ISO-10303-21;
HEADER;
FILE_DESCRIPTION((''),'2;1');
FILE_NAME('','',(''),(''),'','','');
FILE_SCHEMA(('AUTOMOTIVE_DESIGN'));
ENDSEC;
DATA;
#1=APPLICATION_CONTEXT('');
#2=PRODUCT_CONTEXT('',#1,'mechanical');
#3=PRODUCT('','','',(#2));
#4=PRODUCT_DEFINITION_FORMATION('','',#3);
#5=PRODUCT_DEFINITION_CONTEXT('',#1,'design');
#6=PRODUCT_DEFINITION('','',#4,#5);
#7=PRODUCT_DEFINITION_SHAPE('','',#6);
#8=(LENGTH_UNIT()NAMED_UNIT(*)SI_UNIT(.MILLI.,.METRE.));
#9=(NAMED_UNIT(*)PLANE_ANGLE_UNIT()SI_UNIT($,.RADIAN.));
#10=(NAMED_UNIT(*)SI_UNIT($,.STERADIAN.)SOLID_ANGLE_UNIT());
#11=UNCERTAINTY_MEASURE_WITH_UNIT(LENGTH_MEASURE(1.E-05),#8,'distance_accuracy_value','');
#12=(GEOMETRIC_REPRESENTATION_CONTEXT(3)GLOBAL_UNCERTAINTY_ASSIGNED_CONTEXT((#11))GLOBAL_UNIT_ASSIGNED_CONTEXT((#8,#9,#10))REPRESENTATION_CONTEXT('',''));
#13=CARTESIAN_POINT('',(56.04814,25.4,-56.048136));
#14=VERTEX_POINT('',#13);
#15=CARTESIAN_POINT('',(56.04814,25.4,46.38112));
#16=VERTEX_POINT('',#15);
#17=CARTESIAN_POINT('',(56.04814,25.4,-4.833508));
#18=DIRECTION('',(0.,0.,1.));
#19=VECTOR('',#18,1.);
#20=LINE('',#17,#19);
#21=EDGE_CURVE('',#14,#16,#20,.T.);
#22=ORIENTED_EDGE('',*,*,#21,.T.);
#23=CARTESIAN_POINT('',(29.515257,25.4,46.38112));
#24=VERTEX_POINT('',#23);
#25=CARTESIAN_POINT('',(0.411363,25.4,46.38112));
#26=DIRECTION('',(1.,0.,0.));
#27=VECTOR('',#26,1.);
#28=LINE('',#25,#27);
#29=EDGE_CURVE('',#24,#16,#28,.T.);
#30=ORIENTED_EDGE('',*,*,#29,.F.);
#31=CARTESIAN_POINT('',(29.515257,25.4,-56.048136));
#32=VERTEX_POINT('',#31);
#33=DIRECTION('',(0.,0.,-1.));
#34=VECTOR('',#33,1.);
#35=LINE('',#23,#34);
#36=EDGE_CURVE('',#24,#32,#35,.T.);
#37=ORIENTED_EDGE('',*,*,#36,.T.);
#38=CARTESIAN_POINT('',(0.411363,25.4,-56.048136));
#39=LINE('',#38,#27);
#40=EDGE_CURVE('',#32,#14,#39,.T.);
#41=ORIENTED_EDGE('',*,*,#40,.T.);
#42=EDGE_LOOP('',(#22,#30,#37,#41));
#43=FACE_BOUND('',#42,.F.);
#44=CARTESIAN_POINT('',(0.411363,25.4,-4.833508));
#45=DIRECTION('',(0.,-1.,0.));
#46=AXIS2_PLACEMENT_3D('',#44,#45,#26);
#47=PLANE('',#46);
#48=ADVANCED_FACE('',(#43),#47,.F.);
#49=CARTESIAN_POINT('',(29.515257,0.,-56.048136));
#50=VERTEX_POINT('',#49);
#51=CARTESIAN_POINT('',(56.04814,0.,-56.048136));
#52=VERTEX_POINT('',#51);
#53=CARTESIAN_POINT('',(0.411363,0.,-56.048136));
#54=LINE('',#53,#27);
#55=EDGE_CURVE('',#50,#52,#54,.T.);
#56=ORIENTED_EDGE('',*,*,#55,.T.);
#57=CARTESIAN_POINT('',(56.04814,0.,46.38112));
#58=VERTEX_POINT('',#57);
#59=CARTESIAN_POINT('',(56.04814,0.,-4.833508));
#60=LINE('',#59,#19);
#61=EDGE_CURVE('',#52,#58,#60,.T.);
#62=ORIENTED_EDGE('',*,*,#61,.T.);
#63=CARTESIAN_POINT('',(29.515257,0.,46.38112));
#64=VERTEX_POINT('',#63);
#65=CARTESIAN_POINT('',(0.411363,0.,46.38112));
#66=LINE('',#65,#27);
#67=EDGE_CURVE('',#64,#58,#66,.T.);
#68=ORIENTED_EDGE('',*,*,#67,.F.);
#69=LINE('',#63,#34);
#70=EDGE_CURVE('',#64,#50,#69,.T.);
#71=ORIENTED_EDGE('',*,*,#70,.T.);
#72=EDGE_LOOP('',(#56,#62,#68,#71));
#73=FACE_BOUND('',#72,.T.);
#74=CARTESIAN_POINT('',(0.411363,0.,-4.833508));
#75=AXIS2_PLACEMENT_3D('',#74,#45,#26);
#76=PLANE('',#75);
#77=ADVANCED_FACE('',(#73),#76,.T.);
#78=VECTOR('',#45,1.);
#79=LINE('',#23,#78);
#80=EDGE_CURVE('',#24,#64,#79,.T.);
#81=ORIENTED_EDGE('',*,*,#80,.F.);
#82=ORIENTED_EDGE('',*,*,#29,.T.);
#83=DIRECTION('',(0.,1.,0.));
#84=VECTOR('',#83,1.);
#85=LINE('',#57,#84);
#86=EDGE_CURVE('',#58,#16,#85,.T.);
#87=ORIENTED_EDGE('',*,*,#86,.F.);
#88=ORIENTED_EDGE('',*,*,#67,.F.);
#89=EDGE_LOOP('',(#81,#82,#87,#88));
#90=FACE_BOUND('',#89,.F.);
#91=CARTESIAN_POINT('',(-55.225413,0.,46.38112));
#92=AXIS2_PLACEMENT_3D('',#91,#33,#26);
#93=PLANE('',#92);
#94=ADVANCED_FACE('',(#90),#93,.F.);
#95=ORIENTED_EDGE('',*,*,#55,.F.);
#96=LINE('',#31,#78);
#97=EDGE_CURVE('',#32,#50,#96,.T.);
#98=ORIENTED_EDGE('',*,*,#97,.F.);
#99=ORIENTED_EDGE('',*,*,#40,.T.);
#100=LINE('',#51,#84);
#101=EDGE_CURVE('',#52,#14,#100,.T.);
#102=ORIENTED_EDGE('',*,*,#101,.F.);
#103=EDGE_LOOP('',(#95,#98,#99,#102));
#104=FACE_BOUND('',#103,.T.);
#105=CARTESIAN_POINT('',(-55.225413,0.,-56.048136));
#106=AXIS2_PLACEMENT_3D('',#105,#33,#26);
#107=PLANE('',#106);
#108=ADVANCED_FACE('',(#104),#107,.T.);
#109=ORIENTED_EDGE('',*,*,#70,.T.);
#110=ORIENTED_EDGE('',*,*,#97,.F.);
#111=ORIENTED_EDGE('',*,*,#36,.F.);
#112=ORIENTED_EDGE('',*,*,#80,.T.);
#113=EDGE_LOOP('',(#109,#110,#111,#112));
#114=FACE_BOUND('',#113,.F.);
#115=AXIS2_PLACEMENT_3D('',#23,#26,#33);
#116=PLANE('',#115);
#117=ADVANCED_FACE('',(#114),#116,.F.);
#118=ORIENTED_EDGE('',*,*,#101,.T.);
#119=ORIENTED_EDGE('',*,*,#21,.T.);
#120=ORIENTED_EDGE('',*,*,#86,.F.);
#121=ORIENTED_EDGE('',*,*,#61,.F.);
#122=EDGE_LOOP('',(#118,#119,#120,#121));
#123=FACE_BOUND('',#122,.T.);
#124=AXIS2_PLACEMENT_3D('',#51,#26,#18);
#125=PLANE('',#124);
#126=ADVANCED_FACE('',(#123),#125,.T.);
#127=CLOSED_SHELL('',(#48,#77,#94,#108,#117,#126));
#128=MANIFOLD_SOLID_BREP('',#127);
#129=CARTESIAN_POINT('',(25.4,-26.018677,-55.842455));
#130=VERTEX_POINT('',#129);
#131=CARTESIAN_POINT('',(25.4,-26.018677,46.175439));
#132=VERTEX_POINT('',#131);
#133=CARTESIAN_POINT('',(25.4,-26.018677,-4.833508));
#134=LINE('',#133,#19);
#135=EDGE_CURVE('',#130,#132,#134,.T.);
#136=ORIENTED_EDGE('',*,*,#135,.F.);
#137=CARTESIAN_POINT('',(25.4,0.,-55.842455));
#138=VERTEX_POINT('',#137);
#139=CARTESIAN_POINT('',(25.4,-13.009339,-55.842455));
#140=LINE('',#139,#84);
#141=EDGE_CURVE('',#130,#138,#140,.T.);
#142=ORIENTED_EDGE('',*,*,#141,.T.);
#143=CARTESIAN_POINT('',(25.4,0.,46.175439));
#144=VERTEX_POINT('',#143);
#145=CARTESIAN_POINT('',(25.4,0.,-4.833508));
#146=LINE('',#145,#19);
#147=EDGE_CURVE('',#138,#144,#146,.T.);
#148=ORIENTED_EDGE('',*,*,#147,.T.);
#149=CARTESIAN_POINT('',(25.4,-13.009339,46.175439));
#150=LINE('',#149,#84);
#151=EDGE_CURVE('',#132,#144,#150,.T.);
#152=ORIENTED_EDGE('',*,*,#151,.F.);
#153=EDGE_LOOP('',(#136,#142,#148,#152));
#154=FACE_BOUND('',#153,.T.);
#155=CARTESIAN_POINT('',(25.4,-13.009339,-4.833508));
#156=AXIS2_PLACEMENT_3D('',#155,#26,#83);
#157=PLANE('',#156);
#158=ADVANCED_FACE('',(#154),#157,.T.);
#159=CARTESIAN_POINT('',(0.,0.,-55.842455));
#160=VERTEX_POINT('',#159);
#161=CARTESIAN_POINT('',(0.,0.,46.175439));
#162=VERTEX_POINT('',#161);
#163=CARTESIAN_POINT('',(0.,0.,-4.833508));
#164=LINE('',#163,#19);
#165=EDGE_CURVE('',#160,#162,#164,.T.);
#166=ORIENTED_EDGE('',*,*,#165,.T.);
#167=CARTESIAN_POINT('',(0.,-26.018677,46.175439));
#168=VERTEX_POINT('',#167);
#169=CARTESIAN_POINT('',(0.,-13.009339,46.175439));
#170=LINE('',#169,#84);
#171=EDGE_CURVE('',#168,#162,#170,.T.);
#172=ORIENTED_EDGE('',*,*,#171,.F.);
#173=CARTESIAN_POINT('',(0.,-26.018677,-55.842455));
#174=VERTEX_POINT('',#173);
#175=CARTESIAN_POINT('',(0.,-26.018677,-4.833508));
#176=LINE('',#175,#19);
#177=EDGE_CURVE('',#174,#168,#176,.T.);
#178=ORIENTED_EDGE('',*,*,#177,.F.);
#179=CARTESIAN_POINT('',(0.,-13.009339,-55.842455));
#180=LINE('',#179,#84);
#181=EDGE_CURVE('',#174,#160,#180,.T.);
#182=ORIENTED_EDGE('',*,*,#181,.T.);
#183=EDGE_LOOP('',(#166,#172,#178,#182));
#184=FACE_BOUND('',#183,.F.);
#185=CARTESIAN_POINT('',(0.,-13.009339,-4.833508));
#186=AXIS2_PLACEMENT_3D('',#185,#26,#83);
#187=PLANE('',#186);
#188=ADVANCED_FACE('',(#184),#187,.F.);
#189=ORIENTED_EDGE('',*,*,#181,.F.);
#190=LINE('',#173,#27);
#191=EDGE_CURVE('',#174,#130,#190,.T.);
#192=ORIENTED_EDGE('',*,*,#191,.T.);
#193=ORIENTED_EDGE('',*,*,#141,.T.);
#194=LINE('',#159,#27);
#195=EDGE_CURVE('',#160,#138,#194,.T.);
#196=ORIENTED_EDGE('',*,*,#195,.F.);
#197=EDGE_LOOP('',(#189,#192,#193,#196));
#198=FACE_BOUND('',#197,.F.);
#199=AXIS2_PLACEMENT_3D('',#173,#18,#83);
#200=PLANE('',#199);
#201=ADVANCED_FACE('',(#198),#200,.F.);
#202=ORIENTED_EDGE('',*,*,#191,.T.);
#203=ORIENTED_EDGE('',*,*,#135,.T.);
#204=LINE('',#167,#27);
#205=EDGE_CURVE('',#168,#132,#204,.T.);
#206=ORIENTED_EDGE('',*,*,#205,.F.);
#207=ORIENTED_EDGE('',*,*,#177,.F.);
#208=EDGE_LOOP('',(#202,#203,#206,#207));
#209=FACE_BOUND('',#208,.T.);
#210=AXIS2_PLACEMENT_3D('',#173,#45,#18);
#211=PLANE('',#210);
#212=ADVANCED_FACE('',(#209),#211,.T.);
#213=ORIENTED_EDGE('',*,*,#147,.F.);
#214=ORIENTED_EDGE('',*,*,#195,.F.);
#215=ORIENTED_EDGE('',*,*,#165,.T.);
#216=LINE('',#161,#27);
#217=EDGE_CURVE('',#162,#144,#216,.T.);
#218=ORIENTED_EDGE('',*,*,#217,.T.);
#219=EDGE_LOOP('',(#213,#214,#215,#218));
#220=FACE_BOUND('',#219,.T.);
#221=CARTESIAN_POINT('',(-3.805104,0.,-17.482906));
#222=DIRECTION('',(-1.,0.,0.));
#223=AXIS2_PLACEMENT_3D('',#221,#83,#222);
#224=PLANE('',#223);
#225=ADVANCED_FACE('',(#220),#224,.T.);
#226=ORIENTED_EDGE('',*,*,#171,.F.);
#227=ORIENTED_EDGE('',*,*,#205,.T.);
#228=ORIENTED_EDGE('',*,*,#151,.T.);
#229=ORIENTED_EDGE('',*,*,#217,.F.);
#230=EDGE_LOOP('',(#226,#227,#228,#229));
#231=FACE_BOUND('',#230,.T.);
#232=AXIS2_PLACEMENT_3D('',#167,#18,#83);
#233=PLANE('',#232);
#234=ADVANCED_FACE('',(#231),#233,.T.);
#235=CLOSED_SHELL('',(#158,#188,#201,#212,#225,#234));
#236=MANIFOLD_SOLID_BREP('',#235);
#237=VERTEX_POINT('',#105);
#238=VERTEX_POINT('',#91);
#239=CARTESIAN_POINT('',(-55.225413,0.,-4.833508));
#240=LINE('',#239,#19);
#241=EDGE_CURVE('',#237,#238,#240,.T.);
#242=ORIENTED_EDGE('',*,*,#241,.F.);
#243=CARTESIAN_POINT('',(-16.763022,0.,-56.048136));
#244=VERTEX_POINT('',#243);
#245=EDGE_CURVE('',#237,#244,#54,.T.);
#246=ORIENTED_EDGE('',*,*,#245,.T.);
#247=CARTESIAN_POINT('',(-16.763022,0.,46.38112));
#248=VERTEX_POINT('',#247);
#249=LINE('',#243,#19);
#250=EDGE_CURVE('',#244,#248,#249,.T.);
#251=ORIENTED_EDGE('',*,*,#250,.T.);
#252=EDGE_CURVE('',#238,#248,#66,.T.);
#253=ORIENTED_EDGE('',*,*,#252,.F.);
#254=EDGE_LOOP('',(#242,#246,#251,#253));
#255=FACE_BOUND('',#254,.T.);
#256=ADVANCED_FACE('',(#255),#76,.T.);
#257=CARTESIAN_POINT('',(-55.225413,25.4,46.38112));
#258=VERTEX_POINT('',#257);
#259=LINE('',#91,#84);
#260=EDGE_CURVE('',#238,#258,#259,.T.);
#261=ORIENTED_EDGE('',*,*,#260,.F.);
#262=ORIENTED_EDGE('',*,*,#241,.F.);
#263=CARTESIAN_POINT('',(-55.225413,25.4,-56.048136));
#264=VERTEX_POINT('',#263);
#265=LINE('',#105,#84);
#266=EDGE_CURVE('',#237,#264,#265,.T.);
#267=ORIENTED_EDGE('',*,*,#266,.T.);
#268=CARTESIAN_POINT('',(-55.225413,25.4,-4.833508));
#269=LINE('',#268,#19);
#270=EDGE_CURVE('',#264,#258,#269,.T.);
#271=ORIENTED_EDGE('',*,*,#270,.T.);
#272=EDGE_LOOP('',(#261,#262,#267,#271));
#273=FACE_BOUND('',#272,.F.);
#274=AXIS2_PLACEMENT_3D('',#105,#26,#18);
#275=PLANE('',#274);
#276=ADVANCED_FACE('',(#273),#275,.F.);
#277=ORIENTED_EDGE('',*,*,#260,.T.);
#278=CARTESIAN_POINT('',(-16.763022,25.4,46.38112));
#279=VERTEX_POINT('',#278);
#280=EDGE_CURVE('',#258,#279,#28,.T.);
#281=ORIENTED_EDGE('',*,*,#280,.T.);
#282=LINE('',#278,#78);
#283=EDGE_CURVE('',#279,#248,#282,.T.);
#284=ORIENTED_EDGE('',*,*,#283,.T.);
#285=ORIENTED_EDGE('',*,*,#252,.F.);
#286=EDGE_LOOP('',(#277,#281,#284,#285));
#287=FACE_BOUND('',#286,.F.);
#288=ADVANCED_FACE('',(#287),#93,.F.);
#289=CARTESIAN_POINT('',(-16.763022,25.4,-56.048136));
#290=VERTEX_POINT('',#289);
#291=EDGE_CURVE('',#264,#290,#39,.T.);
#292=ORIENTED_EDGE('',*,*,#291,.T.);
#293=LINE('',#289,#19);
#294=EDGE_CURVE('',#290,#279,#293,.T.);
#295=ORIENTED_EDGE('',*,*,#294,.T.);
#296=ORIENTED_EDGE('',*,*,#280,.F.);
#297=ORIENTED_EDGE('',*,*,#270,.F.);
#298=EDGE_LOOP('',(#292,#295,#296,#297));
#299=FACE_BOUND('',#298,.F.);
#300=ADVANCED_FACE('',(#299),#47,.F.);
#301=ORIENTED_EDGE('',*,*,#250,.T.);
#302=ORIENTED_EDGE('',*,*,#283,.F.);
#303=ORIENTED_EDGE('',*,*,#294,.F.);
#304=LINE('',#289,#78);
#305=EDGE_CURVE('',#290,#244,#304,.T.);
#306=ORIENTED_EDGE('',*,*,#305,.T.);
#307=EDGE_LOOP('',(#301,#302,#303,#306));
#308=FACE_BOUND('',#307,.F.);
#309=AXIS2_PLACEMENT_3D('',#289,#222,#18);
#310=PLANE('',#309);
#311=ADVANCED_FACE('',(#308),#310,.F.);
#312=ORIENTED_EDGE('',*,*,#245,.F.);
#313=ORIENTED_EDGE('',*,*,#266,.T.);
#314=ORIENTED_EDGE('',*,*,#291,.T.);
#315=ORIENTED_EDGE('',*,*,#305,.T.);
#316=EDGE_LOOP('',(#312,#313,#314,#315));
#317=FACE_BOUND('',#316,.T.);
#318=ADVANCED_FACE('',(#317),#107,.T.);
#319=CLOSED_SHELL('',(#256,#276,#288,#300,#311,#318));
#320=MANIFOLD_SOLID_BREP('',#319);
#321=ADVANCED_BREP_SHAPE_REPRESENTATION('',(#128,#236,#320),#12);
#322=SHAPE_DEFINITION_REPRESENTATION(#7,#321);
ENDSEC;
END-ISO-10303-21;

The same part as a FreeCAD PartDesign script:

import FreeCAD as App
import Part
import Sketcher
Q = App.Units.Quantity

doc = App.newDocument("Part")
body = doc.addObject("PartDesign::Body", "Body")
body.AllowCompound = True

# Sketch on XZ plane
sketch1 = body.newObject("Sketcher::SketchObject", "Sketch")
sketch1.AttachmentSupport = (doc.getObject("XZ_Plane"), [""])
sketch1.MapMode = "FlatFace"
sketch1.addGeometry(Part.LineSegment(App.Vector(-55.225413, 46.38112, 0), App.Vector(-55.225413, -56.048136, 0)), False)
sketch1.addGeometry(Part.LineSegment(App.Vector(-55.225413, -56.048136, 0), App.Vector(56.04814, -56.048136, 0)), False)
sketch1.addGeometry(Part.LineSegment(App.Vector(56.04814, -56.048136, 0), App.Vector(56.04814, 46.38112, 0)), False)
sketch1.addGeometry(Part.LineSegment(App.Vector(56.04814, 46.38112, 0), App.Vector(-55.225413, 46.38112, 0)), False)
sketch1.addConstraint(Sketcher.Constraint("Coincident", 0, 2, 1, 1))
sketch1.addConstraint(Sketcher.Constraint("Coincident", 1, 2, 2, 1))
sketch1.addConstraint(Sketcher.Constraint("Coincident", 2, 2, 3, 1))
sketch1.addConstraint(Sketcher.Constraint("Coincident", 3, 2, 0, 1))
sketch1.addConstraint(Sketcher.Constraint("Vertical", 0))
sketch1.addConstraint(Sketcher.Constraint("Horizontal", 1))
sketch1.addConstraint(Sketcher.Constraint("Vertical", 2))
sketch1.addConstraint(Sketcher.Constraint("Horizontal", 3))
sketch1.addConstraint(Sketcher.Constraint("DistanceX", 1, 1, 1, 2, 111.273553))
sketch1.addConstraint(Sketcher.Constraint("DistanceY", 0, 2, 0, 1, 102.429256))
sketch1.addConstraint(Sketcher.Constraint("DistanceX", -1, 1, 1, 2, 56.04814))
sketch1.addConstraint(Sketcher.Constraint("DistanceY", -1, 1, 2, 2, 46.38112))
pad1 = body.newObject("PartDesign::Pad", "Pad")
pad1.Profile = sketch1
pad1.Length = Q("1 in")
pad1.Reversed = True

# Sketch on YZ plane
sketch2 = body.newObject("Sketcher::SketchObject", "Sketch001")
sketch2.AttachmentSupport = (doc.getObject("YZ_Plane"), [""])
sketch2.MapMode = "FlatFace"
sketch2.addGeometry(Part.LineSegment(App.Vector(-26.018677, 46.175439, 0), App.Vector(-26.018677, -55.842455, 0)), False)
sketch2.addGeometry(Part.LineSegment(App.Vector(-26.018677, -55.842455, 0), App.Vector(0, -55.842455, 0)), False)
sketch2.addGeometry(Part.LineSegment(App.Vector(0, -55.842455, 0), App.Vector(0, 46.175439, 0)), False)
sketch2.addGeometry(Part.LineSegment(App.Vector(0, 46.175439, 0), App.Vector(-26.018677, 46.175439, 0)), False)
sketch2.addConstraint(Sketcher.Constraint("Coincident", 0, 2, 1, 1))
sketch2.addConstraint(Sketcher.Constraint("Coincident", 1, 2, 2, 1))
sketch2.addConstraint(Sketcher.Constraint("Coincident", 2, 2, 3, 1))
sketch2.addConstraint(Sketcher.Constraint("Coincident", 3, 2, 0, 1))
sketch2.addConstraint(Sketcher.Constraint("Vertical", 0))
sketch2.addConstraint(Sketcher.Constraint("Horizontal", 1))
sketch2.addConstraint(Sketcher.Constraint("Vertical", 2))
sketch2.addConstraint(Sketcher.Constraint("Horizontal", 3))
sketch2.addConstraint(Sketcher.Constraint("PointOnObject", 1, 2, -2))
sketch2.addConstraint(Sketcher.Constraint("DistanceX", 1, 1, 1, 2, 26.018677))
sketch2.addConstraint(Sketcher.Constraint("DistanceY", 0, 2, 0, 1, 102.017894))
sketch2.addConstraint(Sketcher.Constraint("DistanceY", -1, 1, 2, 2, 46.175439))
pad2 = body.newObject("PartDesign::Pad", "Pad001")
pad2.Profile = sketch2
pad2.Length = Q("1 in")

# Sketch on XZ plane
sketch3 = body.newObject("Sketcher::SketchObject", "Sketch002")
sketch3.AttachmentSupport = (doc.getObject("XZ_Plane"), [""])
sketch3.MapMode = "FlatFace"
sketch3.AttachmentOffset = App.Placement(App.Vector(0, 0, -1 * 25.4), App.Rotation())
sketch3.addGeometry(Part.LineSegment(App.Vector(-16.763022, -56.048136, 0), App.Vector(-16.763022, 46.38112, 0)), False)
sketch3.addGeometry(Part.LineSegment(App.Vector(-16.763022, 46.38112, 0), App.Vector(29.515257, 46.38112, 0)), False)
sketch3.addGeometry(Part.LineSegment(App.Vector(29.515257, 46.38112, 0), App.Vector(29.515257, -56.048136, 0)), False)
sketch3.addGeometry(Part.LineSegment(App.Vector(29.515257, -56.048136, 0), App.Vector(-16.763022, -56.048136, 0)), False)
sketch3.addConstraint(Sketcher.Constraint("Coincident", 0, 2, 1, 1))
sketch3.addConstraint(Sketcher.Constraint("Coincident", 1, 2, 2, 1))
sketch3.addConstraint(Sketcher.Constraint("Coincident", 2, 2, 3, 1))
sketch3.addConstraint(Sketcher.Constraint("Coincident", 3, 2, 0, 1))
sketch3.addConstraint(Sketcher.Constraint("Vertical", 0))
sketch3.addConstraint(Sketcher.Constraint("Horizontal", 1))
sketch3.addConstraint(Sketcher.Constraint("Vertical", 2))
sketch3.addConstraint(Sketcher.Constraint("Horizontal", 3))
sketch3.addConstraint(Sketcher.Constraint("DistanceX", 1, 1, 1, 2, 46.278279))
sketch3.addConstraint(Sketcher.Constraint("DistanceY", 0, 1, 0, 2, 102.429256))
sketch3.addConstraint(Sketcher.Constraint("DistanceY", -1, 1, 0, 2, 46.38112))
sketch3.addConstraint(Sketcher.Constraint("DistanceX", 0, 2, -1, 1, 16.763022))
pocket1 = body.newObject("PartDesign::Pocket", "Pocket")
pocket1.Profile = sketch3
pocket1.Length = Q("1 in")
pocket1.Reversed = True

doc.recompute()
